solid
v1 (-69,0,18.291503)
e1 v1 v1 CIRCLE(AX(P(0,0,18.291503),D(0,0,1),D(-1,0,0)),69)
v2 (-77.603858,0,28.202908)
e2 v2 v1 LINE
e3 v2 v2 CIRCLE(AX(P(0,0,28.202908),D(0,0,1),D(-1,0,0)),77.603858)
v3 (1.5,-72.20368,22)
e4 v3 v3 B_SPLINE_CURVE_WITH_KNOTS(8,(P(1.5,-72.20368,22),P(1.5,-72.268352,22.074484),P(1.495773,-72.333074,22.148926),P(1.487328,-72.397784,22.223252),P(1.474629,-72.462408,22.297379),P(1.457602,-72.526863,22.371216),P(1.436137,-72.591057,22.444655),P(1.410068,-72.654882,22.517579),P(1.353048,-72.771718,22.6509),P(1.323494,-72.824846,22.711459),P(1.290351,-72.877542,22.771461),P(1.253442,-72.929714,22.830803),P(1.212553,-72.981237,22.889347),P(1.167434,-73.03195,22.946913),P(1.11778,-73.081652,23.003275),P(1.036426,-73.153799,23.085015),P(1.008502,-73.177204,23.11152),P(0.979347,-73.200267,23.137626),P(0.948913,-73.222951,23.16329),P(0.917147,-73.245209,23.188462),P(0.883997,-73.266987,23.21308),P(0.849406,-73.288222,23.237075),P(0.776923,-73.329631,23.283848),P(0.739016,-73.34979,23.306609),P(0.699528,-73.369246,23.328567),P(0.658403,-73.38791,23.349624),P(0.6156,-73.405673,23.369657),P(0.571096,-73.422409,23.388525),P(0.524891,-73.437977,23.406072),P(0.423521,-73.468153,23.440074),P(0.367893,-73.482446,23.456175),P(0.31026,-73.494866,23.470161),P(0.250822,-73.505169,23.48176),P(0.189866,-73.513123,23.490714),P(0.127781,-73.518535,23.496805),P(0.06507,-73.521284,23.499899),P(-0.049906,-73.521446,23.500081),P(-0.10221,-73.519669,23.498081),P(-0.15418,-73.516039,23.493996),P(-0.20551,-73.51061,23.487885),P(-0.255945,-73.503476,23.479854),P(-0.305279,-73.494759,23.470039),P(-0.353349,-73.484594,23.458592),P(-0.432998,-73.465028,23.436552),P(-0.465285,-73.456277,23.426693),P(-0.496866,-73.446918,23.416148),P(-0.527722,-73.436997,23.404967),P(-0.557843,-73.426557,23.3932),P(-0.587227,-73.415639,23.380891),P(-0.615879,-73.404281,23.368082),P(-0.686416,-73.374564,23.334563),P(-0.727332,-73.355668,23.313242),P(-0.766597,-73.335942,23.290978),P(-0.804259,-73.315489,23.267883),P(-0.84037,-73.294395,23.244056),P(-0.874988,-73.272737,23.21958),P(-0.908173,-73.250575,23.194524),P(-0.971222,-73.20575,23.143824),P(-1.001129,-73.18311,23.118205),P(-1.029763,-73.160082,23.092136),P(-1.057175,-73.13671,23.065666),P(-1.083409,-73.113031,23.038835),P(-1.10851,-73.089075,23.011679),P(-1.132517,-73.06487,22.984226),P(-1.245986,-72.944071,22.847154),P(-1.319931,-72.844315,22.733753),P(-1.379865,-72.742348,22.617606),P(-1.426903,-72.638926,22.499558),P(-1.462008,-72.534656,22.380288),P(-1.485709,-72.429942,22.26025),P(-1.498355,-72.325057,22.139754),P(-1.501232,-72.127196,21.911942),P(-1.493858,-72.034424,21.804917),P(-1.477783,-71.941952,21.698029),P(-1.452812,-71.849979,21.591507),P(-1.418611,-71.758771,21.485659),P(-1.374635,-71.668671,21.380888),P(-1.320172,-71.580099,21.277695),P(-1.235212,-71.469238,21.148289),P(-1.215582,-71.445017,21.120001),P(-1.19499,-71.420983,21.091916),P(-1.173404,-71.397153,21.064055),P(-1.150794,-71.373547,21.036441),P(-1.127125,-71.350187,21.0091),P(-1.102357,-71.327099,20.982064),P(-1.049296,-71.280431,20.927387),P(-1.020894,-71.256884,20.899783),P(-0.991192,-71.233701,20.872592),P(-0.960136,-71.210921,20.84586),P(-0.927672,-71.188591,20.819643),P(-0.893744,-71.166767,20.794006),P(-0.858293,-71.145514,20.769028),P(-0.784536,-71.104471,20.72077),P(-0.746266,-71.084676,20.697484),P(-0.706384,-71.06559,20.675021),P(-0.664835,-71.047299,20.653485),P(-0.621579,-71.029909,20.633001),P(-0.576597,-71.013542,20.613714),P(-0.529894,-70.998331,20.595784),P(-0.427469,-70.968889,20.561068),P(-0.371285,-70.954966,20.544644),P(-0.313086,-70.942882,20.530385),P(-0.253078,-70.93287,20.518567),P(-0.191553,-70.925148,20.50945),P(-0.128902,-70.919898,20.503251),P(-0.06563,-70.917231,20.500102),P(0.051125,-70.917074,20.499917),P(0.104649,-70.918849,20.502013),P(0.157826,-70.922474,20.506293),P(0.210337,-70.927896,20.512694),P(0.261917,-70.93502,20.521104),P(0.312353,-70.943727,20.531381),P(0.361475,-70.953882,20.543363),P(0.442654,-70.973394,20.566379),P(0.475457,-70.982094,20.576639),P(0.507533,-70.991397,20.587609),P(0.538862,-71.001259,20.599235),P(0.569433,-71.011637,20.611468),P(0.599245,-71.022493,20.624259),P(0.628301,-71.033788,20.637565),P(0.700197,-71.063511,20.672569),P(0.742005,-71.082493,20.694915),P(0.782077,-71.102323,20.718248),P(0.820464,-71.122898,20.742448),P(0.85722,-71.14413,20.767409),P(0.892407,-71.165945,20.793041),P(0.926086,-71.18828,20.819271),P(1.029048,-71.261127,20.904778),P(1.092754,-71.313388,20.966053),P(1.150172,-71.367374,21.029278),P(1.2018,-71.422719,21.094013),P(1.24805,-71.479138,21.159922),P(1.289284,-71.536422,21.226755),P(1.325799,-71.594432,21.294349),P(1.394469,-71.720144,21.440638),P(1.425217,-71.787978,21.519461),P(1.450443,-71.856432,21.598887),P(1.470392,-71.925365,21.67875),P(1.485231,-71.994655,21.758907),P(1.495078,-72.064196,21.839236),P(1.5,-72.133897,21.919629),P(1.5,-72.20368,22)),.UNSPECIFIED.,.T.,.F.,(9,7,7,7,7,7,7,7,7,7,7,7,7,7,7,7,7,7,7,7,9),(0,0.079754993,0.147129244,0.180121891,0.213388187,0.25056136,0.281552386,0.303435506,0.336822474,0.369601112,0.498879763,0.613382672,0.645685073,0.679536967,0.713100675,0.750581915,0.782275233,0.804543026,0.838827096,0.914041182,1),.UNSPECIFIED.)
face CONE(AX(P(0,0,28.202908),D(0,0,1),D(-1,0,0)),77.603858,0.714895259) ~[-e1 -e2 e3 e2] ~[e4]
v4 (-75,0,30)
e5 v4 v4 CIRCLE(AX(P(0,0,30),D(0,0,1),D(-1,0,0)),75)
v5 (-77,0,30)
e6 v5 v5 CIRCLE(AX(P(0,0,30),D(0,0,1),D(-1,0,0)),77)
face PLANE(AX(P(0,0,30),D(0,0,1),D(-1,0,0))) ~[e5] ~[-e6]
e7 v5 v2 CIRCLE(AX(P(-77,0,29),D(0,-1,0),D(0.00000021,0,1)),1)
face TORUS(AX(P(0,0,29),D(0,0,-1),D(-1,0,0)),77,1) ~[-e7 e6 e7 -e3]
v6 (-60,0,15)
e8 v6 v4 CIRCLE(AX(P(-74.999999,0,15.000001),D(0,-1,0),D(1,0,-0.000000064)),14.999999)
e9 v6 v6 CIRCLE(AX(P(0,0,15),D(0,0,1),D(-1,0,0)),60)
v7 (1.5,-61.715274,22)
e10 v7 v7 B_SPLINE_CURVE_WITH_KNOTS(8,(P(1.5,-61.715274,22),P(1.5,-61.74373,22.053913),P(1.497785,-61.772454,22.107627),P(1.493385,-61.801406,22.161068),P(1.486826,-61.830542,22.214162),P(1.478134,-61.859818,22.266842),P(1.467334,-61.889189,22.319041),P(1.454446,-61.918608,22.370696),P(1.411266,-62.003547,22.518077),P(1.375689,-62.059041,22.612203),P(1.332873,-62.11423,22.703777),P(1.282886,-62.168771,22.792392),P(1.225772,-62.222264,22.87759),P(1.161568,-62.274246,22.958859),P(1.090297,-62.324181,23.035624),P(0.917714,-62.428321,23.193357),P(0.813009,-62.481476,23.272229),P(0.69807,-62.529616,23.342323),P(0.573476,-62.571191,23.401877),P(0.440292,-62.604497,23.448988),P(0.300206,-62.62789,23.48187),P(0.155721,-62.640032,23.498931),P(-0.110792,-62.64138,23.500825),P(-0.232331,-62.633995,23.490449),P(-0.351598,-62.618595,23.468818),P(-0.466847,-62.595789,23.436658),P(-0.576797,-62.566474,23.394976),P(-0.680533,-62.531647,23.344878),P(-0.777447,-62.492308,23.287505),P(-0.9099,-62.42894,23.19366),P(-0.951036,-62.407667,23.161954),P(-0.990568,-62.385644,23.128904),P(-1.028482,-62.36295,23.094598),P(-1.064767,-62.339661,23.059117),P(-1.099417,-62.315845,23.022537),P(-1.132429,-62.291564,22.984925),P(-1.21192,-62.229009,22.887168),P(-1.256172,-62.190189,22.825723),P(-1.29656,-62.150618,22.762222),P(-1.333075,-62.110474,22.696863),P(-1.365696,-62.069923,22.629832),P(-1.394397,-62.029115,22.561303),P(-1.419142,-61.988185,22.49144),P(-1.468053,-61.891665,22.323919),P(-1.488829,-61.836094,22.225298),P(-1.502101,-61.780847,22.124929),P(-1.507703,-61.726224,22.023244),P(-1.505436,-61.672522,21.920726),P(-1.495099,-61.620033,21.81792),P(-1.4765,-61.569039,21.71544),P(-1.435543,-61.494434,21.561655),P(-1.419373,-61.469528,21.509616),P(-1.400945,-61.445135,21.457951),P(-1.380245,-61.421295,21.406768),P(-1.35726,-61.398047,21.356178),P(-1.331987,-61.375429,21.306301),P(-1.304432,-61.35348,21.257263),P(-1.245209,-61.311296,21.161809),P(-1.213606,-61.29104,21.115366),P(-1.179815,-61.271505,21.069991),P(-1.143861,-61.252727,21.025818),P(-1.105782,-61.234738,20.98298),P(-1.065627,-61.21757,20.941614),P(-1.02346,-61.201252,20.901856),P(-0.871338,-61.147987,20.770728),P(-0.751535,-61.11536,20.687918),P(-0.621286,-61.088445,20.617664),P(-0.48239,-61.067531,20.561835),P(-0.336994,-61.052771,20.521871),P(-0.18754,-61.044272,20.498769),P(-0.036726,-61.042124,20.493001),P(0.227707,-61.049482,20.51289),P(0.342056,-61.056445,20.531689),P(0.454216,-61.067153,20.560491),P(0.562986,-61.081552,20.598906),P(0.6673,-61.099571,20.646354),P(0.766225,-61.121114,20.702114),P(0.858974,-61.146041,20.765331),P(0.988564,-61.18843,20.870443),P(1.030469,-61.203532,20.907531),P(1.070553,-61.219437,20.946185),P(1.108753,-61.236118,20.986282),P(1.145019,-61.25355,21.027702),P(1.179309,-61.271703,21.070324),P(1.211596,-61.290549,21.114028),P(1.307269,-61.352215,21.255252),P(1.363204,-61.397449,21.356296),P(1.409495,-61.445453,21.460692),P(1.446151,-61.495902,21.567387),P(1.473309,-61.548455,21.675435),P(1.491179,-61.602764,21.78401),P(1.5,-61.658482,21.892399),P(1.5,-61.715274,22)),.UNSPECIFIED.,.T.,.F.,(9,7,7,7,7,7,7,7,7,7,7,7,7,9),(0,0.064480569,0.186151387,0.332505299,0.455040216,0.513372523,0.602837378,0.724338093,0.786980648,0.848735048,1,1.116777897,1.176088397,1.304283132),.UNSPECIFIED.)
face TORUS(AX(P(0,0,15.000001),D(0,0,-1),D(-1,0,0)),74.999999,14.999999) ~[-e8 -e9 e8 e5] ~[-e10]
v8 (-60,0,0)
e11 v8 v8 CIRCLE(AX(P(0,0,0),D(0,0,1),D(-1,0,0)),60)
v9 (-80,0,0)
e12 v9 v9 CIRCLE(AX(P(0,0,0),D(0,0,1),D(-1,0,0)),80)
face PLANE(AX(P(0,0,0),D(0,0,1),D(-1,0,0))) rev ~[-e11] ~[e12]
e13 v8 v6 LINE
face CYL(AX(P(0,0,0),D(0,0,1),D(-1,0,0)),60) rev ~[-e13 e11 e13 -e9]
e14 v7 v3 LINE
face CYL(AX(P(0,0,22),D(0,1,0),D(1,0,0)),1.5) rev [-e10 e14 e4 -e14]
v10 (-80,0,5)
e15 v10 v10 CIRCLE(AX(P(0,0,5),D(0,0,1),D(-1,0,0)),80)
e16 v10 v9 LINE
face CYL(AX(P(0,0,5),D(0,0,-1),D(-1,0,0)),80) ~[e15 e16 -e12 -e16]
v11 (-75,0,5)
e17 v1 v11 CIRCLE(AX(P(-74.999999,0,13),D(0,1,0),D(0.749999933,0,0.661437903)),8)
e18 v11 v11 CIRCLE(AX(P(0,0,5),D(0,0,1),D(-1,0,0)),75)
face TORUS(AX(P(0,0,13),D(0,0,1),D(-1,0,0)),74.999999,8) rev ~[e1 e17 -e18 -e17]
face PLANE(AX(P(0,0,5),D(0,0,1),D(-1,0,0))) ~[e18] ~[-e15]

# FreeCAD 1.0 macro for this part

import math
import FreeCAD as App
import Part
import Sketcher
from FreeCAD import Vector

doc = App.newDocument("Part")
body = doc.addObject("PartDesign::Body", "Body")

# Sketch on XZ plane
sketch1 = body.newObject("Sketcher::SketchObject", "Sketch")
sketch1.AttachmentSupport = (doc.getObject("XZ_Plane"), [""])
sketch1.MapMode = "FlatFace"
sketch1.addGeometry([
    Part.LineSegment(Vector(-80, 5, 0), Vector(-80, 0, 0)),  # 0
    Part.LineSegment(Vector(-80, 0, 0), Vector(-60, 0, 0)),  # 1
    Part.LineSegment(Vector(-60, 0, 0), Vector(-60, 15, 0)),  # 2
    Part.ArcOfCircle(Part.Circle(Vector(-75, 15, 0), Vector(0, 0, 1), 15), math.radians(0), math.radians(90)),  # 3
    Part.LineSegment(Vector(-75, 30, 0), Vector(-77, 30, 0)),  # 4
    Part.ArcOfCircle(Part.Circle(Vector(-77, 29, 0), Vector(0, 0, 1), 1), math.radians(90), math.radians(233)),  # 5
    Part.LineSegment(Vector(-77.6, 28.2, 0), Vector(-69, 18.3, 0)),  # 6
    Part.ArcOfCircle(Part.Circle(Vector(-75, 13, 0), Vector(0, 0, 1), 8), math.radians(-90), math.radians(41)),  # 7
    Part.LineSegment(Vector(-75, 5, 0), Vector(-80, 5, 0)),  # 8
], False)
sketch1.addConstraint([
    Sketcher.Constraint("Coincident", 0, 2, 1, 1),
    Sketcher.Constraint("Coincident", 1, 2, 2, 1),
    Sketcher.Constraint("Tangent", 2, 2, 3, 1),
    Sketcher.Constraint("Tangent", 3, 2, 4, 1),
    Sketcher.Constraint("Tangent", 4, 2, 5, 1),
    Sketcher.Constraint("Coincident", 5, 2, 6, 1),
    Sketcher.Constraint("Coincident", 6, 2, 7, 2),
    Sketcher.Constraint("Tangent", 7, 1, 8, 1),
    Sketcher.Constraint("Coincident", 8, 2, 0, 1),
    Sketcher.Constraint("Vertical", 0),
    Sketcher.Constraint("Horizontal", 1),
    Sketcher.Constraint("Vertical", 2),
    Sketcher.Constraint("Horizontal", 4),
    Sketcher.Constraint("Horizontal", 8),
    Sketcher.Constraint("PointOnObject", 0, 2, -1),
    Sketcher.Constraint("Vertical", 3, 3, 7, 3),
    Sketcher.Constraint("Equal", 8, 0),
    Sketcher.Constraint("Radius", 3, 14.999999),
    Sketcher.Constraint("Radius", 5, 1.0),
    Sketcher.Constraint("Radius", 7, 8.0),
    Sketcher.Constraint("DistanceX", 1, 1, 1, 2, 20.0),
    Sketcher.Constraint("DistanceX", 4, 2, 4, 1, 2.0),
    Sketcher.Constraint("DistanceY", 2, 1, 2, 2, 15.0),
    Sketcher.Constraint("DistanceX", 3, 3, -1, 1, 74.999999),
    Sketcher.Constraint("DistanceX", 6, 2, -1, 1, 69.0),
    Sketcher.Constraint("DistanceX", 5, 2, -1, 1, 77.603858),
])
revolution = body.newObject("PartDesign::Revolution", "Revolution")
revolution.Profile = sketch1
revolution.ReferenceAxis = (sketch1, ["V_Axis"])
revolution.Angle = 360

# Sketch on XZ plane
sketch2 = body.newObject("Sketcher::SketchObject", "Sketch001")
sketch2.AttachmentSupport = (doc.getObject("XZ_Plane"), [""])
sketch2.MapMode = "FlatFace"
sketch2.addGeometry(Part.Circle(Vector(0, 22, 0), Vector(0, 0, 1), 1.5), False)
sketch2.addConstraint([
    Sketcher.Constraint("PointOnObject", 0, 3, -2),
    Sketcher.Constraint("Diameter", 0, 3.0),
    Sketcher.Constraint("DistanceY", -1, 1, 0, 3, 22.0),
])
pocket1 = body.newObject("PartDesign::Pocket", "Pocket")
pocket1.Profile = sketch2
pocket1.Type = "ThroughAll"
pocket1.Reversed = True

doc.recompute()
